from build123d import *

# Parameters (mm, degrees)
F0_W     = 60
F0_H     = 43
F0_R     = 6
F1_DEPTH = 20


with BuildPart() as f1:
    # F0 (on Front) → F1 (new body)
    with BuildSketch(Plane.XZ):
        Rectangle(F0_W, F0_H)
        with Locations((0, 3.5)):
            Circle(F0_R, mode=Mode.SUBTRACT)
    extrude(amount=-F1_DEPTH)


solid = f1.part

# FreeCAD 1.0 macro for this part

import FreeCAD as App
import Part
import Sketcher
from FreeCAD import Vector
Q = App.Units.Quantity


def add_polygon(sketch, points):
    """Adds a closed chain of lines whose ends are joined by coincident constraints."""
    first, n = sketch.GeometryCount, len(points)
    for a, b in zip(points, points[1:] + points[:1]):
        sketch.addGeometry(Part.LineSegment(App.Vector(*a, 0), App.Vector(*b, 0)), False)
    for i in range(n):
        sketch.addConstraint(Sketcher.Constraint("Coincident", first + i, 2, first + (i + 1) % n, 1))

doc = App.newDocument("Part")
body = doc.addObject("PartDesign::Body", "Body")

sketch1 = doc.addObject("Sketcher::SketchObject", "Sketch")
body.addObject(sketch1)
sketch1.AttachmentSupport = (doc.XZ_Plane, [""])
sketch1.MapMode = "FlatFace"
add_polygon(sketch1, [(-30, 21.5), (-30, -21.5), (30, -21.5), (30, 21.5)])
sketch1.addGeometry(Part.Circle(Vector(0, 3.5, 0), Vector(0, 0, 1), 6), False)
sketch1.addConstraint(Sketcher.Constraint("Vertical", 0))
sketch1.addConstraint(Sketcher.Constraint("Horizontal", 1))
sketch1.addConstraint(Sketcher.Constraint("Vertical", 2))
sketch1.addConstraint(Sketcher.Constraint("Horizontal", 3))
sketch1.addConstraint(Sketcher.Constraint("Symmetric", 0, 2, 2, 2, -1, 1))
sketch1.addConstraint(Sketcher.Constraint("PointOnObject", 4, 3, -2))
sketch1.addConstraint(Sketcher.Constraint("Diameter", 4, Q("12 mm")))
sketch1.addConstraint(Sketcher.Constraint("DistanceX", 1, 1, 1, 2, Q("60 mm")))
sketch1.addConstraint(Sketcher.Constraint("DistanceY", 0, 2, 0, 1, Q("43 mm")))
sketch1.addConstraint(Sketcher.Constraint("DistanceY", 0, 2, 4, 3, Q("25 mm")))
pad1 = doc.addObject("PartDesign::Pad", "Pad")
body.addObject(pad1)
pad1.Profile = sketch1
pad1.Length = 20
pad1.Reversed = True

doc.recompute()
